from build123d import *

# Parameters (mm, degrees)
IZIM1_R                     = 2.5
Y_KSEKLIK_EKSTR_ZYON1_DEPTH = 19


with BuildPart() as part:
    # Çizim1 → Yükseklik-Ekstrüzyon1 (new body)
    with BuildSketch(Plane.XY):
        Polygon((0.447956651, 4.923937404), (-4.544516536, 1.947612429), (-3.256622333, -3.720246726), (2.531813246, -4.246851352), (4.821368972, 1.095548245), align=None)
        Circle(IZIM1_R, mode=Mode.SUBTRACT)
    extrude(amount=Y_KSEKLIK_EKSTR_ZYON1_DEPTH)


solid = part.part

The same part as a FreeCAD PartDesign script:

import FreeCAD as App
import Part
import Sketcher

V = App.Vector


def add_polygon(sketch, points):
    """Adds a closed chain of lines whose ends are joined by coincident constraints."""
    first, n = sketch.GeometryCount, len(points)
    for a, b in zip(points, points[1:] + points[:1]):
        sketch.addGeometry(Part.LineSegment(App.Vector(*a, 0), App.Vector(*b, 0)), False)
    for i in range(n):
        sketch.addConstraint(Sketcher.Constraint("Coincident", first + i, 2, first + (i + 1) % n, 1))

doc = App.newDocument("Part")
body = doc.addObject("PartDesign::Body", "Body")

# Sketch on XY plane
sketch1 = body.newObject("Sketcher::SketchObject", "Sketch")
sketch1.AttachmentSupport = (doc.getObject("XY_Plane"), [""])
sketch1.MapMode = "FlatFace"
add_polygon(sketch1, [(0.4, 4.9), (-4.5, 1.9), (-3.3, -3.7), (2.5, -4.2), (4.8, 1.1)])  # lines 0-4
sketch1.addGeometry(Part.Circle(V(0, 0, 0), V(0, 0, 1), 2.5), False)  # 5
sketch1.addConstraint([
    Sketcher.Constraint("Coincident", 5, 3, -1, 1),
    Sketcher.Constraint("Equal", 0, 1),
    Sketcher.Constraint("Equal", 1, 2),
    Sketcher.Constraint("Equal", 2, 3),
    Sketcher.Constraint("Equal", 3, 4),
    Sketcher.Constraint("Diameter", 5, 5.0),
    Sketcher.Constraint("DistanceY", 2, 2, 3, 2, 5.3424),
    Sketcher.Constraint("Distance", 0, 5.81234),
    Sketcher.Constraint("DistanceY", 2, 2, -1, 1, 4.246851),
    Sketcher.Constraint("DistanceX", -1, 1, 3, 2, 4.821369),
    Sketcher.Constraint("DistanceY", 1, 2, 0, 2, 5.667859),
    Sketcher.Constraint("DistanceX", 0, 2, 2, 2, 7.07633),
])
pad1 = body.newObject("PartDesign::Pad", "Pad")
pad1.Profile = sketch1
pad1.Length = 19

doc.recompute()
